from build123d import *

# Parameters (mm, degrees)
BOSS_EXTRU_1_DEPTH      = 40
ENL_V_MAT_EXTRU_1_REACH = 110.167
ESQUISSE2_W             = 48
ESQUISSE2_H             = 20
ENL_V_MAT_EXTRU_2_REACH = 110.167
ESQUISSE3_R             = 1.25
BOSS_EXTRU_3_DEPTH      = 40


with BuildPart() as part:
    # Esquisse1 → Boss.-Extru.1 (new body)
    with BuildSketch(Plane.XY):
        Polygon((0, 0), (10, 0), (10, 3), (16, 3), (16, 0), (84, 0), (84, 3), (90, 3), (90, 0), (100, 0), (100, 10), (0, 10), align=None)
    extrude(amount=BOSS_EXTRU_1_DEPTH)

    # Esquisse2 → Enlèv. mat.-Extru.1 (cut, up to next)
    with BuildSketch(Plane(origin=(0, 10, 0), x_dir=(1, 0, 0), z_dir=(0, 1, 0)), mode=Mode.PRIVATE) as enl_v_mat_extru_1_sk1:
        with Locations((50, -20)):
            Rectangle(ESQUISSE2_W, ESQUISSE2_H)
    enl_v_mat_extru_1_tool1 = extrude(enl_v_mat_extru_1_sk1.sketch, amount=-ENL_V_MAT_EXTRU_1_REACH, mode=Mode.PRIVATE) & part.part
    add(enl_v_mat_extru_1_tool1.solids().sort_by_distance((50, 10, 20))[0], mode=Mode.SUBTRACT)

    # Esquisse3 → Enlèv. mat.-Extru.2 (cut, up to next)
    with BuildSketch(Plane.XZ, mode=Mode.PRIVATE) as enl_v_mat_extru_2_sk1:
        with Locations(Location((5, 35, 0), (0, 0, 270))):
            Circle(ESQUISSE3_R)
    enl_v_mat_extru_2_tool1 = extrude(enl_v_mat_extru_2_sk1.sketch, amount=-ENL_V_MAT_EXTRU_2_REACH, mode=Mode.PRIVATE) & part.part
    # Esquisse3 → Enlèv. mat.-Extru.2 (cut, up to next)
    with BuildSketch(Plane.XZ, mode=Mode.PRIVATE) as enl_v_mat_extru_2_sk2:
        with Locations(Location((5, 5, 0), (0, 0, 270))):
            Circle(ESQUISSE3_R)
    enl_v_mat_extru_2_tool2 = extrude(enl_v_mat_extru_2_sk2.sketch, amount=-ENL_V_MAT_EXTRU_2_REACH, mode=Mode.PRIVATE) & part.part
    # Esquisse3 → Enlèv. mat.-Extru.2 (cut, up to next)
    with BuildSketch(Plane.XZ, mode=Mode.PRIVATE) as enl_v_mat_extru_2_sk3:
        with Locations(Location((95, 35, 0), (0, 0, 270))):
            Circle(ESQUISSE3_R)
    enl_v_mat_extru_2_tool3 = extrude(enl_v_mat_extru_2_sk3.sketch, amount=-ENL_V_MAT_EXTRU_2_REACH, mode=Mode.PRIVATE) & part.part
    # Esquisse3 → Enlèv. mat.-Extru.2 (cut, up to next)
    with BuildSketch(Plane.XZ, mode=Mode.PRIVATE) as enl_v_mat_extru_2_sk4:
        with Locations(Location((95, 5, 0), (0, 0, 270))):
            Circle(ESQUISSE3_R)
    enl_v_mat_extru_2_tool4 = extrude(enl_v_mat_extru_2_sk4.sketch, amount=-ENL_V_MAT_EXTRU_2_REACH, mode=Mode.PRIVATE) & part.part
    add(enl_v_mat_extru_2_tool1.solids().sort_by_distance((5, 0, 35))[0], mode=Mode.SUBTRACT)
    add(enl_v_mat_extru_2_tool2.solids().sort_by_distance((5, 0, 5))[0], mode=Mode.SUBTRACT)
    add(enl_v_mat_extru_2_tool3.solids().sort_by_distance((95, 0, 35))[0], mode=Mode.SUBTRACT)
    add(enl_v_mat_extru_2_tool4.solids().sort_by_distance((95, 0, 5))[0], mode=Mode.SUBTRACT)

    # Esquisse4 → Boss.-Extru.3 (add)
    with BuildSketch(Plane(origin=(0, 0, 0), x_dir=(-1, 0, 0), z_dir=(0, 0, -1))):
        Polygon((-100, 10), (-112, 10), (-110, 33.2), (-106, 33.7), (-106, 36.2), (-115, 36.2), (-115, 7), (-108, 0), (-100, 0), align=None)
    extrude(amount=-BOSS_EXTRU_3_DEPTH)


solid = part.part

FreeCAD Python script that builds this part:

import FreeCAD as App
import Part
import Sketcher
from FreeCAD import Vector
Q = App.Units.Quantity


def add_polygon(sketch, points):
    """Adds a closed chain of lines whose ends are joined by coincident constraints."""
    first, n = sketch.GeometryCount, len(points)
    for a, b in zip(points, points[1:] + points[:1]):
        sketch.addGeometry(Part.LineSegment(App.Vector(*a, 0), App.Vector(*b, 0)), False)
    for i in range(n):
        sketch.addConstraint(Sketcher.Constraint("Coincident", first + i, 2, first + (i + 1) % n, 1))

doc = App.newDocument("Part")
body = doc.addObject("PartDesign::Body", "Body")

# Sketch on XY plane
sketch1 = body.newObject("Sketcher::SketchObject", "Sketch")
sketch1.AttachmentSupport = (doc.getObject("XY_Plane"), [""])
sketch1.MapMode = "FlatFace"
add_polygon(sketch1, [(0, 0), (10, 0), (10, 3), (16, 3), (16, 0), (84, 0), (84, 3), (90, 3), (90, 0), (100, 0), (100, 10), (0, 10)])  # lines 0-11
sketch1.addConstraint([
    Sketcher.Constraint("Horizontal", 0),
    Sketcher.Constraint("Vertical", 1),
    Sketcher.Constraint("Horizontal", 2),
    Sketcher.Constraint("Vertical", 3),
    Sketcher.Constraint("Horizontal", 4),
    Sketcher.Constraint("Vertical", 5),
    Sketcher.Constraint("Horizontal", 6),
    Sketcher.Constraint("Vertical", 7),
    Sketcher.Constraint("Horizontal", 8),
    Sketcher.Constraint("Vertical", 9),
    Sketcher.Constraint("Horizontal", 10),
    Sketcher.Constraint("Vertical", 11),
    Sketcher.Constraint("Coincident", 11, 2, -1, 1),
    Sketcher.Constraint("PointOnObject", 3, 2, -1),
    Sketcher.Constraint("PointOnObject", 7, 2, -1),
    Sketcher.Constraint("Horizontal", 2, 2, 5, 2),
    Sketcher.Constraint("Equal", 2, 6),
    Sketcher.Constraint("Equal", 0, 8),
    Sketcher.Constraint("Equal", 8, 9),
    Sketcher.Constraint("DistanceX", 0, 1, 0, 2, Q("10 mm")),
    Sketcher.Constraint("DistanceX", 2, 1, 2, 2, Q("6 mm")),
    Sketcher.Constraint("DistanceX", 4, 1, 4, 2, Q("68 mm")),
    Sketcher.Constraint("DistanceY", 1, 1, 1, 2, Q("3 mm")),
])
pad1 = body.newObject("PartDesign::Pad", "Pad")
pad1.Profile = sketch1
pad1.Length = 40

# Sketch on XZ plane
sketch2 = body.newObject("Sketcher::SketchObject", "Sketch001")
sketch2.AttachmentSupport = (doc.getObject("XZ_Plane"), [""])
sketch2.MapMode = "FlatFace"
sketch2.AttachmentOffset = App.Placement(Vector(0, 0, -10), App.Rotation())
add_polygon(sketch2, [(26, 10), (26, 30), (74, 30), (74, 10)])  # lines 0-3
sketch2.addConstraint([
    Sketcher.Constraint("Vertical", 0),
    Sketcher.Constraint("Horizontal", 1),
    Sketcher.Constraint("Vertical", 2),
    Sketcher.Constraint("Horizontal", 3),
    Sketcher.Constraint("DistanceX", 1, 1, 1, 2, Q("48 mm")),
    Sketcher.Constraint("DistanceY", 0, 1, 0, 2, Q("20 mm")),
    Sketcher.Constraint("DistanceX", -1, 1, 0, 2, Q("26 mm")),
    Sketcher.Constraint("DistanceY", -1, 1, 0, 2, Q("30 mm")),
])
pocket1 = body.newObject("PartDesign::Pocket", "Pocket")
pocket1.Profile = sketch2
pocket1.Type = "UpToFirst"
pocket1.Reversed = True

# Sketch on XZ plane
sketch3 = body.newObject("Sketcher::SketchObject", "Sketch002")
sketch3.AttachmentSupport = (doc.getObject("XZ_Plane"), [""])
sketch3.MapMode = "FlatFace"
sketch3.addGeometry(Part.Circle(Vector(5, 35, 0), Vector(0, 0, 1), 1.2), False)
sketch3.addConstraint([
    Sketcher.Constraint("Diameter", 0, Q("2.5 mm")),
    Sketcher.Constraint("DistanceX", -1, 1, 0, 3, Q("5 mm")),
    Sketcher.Constraint("DistanceY", -1, 1, 0, 3, Q("35 mm")),
])
pocket2 = body.newObject("PartDesign::Pocket", "Pocket001")
pocket2.Profile = sketch3
pocket2.Type = "UpToFirst"

# Sketch on XZ plane
sketch4 = body.newObject("Sketcher::SketchObject", "Sketch003")
sketch4.AttachmentSupport = (doc.getObject("XZ_Plane"), [""])
sketch4.MapMode = "FlatFace"
sketch4.addGeometry(Part.Circle(Vector(5, 5, 0), Vector(0, 0, 1), 1.2), False)
sketch4.addConstraint([
    Sketcher.Constraint("Diameter", 0, Q("2.5 mm")),
    Sketcher.Constraint("DistanceX", -1, 1, 0, 3, Q("5 mm")),
    Sketcher.Constraint("DistanceY", -1, 1, 0, 3, Q("5 mm")),
])
pocket3 = body.newObject("PartDesign::Pocket", "Pocket002")
pocket3.Profile = sketch4
pocket3.Type = "UpToFirst"

# Sketch on XZ plane
sketch5 = body.newObject("Sketcher::SketchObject", "Sketch004")
sketch5.AttachmentSupport = (doc.getObject("XZ_Plane"), [""])
sketch5.MapMode = "FlatFace"
sketch5.addGeometry(Part.Circle(Vector(95, 35, 0), Vector(0, 0, 1), 1.2), False)
sketch5.addConstraint([
    Sketcher.Constraint("Diameter", 0, Q("2.5 mm")),
    Sketcher.Constraint("DistanceX", -1, 1, 0, 3, Q("95 mm")),
    Sketcher.Constraint("DistanceY", -1, 1, 0, 3, Q("35 mm")),
])
pocket4 = body.newObject("PartDesign::Pocket", "Pocket003")
pocket4.Profile = sketch5
pocket4.Type = "UpToFirst"

# Sketch on XZ plane
sketch6 = body.newObject("Sketcher::SketchObject", "Sketch005")
sketch6.AttachmentSupport = (doc.getObject("XZ_Plane"), [""])
sketch6.MapMode = "FlatFace"
sketch6.addGeometry(Part.Circle(Vector(95, 5, 0), Vector(0, 0, 1), 1.2), False)
sketch6.addConstraint([
    Sketcher.Constraint("Diameter", 0, Q("2.5 mm")),
    Sketcher.Constraint("DistanceX", -1, 1, 0, 3, Q("95 mm")),
    Sketcher.Constraint("DistanceY", -1, 1, 0, 3, Q("5 mm")),
])
pocket5 = body.newObject("PartDesign::Pocket", "Pocket004")
pocket5.Profile = sketch6
pocket5.Type = "UpToFirst"

# Sketch on XY plane
sketch7 = body.newObject("Sketcher::SketchObject", "Sketch006")
sketch7.AttachmentSupport = (doc.getObject("XY_Plane"), [""])
sketch7.MapMode = "FlatFace"
add_polygon(sketch7, [(100, 10), (112, 10), (110, 33.2), (106, 33.7), (106, 36.2), (115, 36.2), (115, 7), (108, 0), (100, 0)])  # lines 0-8
sketch7.addConstraint([
    Sketcher.Constraint("Horizontal", 0),
    Sketcher.Constraint("Vertical", 3),
    Sketcher.Constraint("Horizontal", 4),
    Sketcher.Constraint("Vertical", 5),
    Sketcher.Constraint("Horizontal", 7),
    Sketcher.Constraint("Vertical", 8),
    Sketcher.Constraint("PointOnObject", 6, 2, -1),
    Sketcher.Constraint("DistanceX", 0, 1, 0, 2, Q("12 mm")),
    Sketcher.Constraint("DistanceX", 4, 1, 4, 2, Q("9 mm")),
    Sketcher.Constraint("DistanceX", 7, 2, 7, 1, Q("8 mm")),
    Sketcher.Constraint("DistanceY", 8, 1, 8, 2, Q("10 mm")),
    Sketcher.Constraint("Angle", 6, Q("-135 deg")),
    Sketcher.Constraint("DistanceY", 3, 1, 3, 2, Q("2.5 mm")),
    Sketcher.Constraint("DistanceY", 5, 2, 5, 1, Q("29.2 mm")),
    Sketcher.Constraint("DistanceX", -1, 1, 0, 2, Q("112 mm")),
    Sketcher.Constraint("DistanceX", -1, 1, 1, 2, Q("110 mm")),
    Sketcher.Constraint("DistanceX", -1, 1, 2, 2, Q("106 mm")),
    Sketcher.Constraint("DistanceY", 1, 2, 3, 2, Q("3 mm")),
])
pad2 = body.newObject("PartDesign::Pad", "Pad001")
pad2.Profile = sketch7
pad2.Length = 40

doc.recompute()
